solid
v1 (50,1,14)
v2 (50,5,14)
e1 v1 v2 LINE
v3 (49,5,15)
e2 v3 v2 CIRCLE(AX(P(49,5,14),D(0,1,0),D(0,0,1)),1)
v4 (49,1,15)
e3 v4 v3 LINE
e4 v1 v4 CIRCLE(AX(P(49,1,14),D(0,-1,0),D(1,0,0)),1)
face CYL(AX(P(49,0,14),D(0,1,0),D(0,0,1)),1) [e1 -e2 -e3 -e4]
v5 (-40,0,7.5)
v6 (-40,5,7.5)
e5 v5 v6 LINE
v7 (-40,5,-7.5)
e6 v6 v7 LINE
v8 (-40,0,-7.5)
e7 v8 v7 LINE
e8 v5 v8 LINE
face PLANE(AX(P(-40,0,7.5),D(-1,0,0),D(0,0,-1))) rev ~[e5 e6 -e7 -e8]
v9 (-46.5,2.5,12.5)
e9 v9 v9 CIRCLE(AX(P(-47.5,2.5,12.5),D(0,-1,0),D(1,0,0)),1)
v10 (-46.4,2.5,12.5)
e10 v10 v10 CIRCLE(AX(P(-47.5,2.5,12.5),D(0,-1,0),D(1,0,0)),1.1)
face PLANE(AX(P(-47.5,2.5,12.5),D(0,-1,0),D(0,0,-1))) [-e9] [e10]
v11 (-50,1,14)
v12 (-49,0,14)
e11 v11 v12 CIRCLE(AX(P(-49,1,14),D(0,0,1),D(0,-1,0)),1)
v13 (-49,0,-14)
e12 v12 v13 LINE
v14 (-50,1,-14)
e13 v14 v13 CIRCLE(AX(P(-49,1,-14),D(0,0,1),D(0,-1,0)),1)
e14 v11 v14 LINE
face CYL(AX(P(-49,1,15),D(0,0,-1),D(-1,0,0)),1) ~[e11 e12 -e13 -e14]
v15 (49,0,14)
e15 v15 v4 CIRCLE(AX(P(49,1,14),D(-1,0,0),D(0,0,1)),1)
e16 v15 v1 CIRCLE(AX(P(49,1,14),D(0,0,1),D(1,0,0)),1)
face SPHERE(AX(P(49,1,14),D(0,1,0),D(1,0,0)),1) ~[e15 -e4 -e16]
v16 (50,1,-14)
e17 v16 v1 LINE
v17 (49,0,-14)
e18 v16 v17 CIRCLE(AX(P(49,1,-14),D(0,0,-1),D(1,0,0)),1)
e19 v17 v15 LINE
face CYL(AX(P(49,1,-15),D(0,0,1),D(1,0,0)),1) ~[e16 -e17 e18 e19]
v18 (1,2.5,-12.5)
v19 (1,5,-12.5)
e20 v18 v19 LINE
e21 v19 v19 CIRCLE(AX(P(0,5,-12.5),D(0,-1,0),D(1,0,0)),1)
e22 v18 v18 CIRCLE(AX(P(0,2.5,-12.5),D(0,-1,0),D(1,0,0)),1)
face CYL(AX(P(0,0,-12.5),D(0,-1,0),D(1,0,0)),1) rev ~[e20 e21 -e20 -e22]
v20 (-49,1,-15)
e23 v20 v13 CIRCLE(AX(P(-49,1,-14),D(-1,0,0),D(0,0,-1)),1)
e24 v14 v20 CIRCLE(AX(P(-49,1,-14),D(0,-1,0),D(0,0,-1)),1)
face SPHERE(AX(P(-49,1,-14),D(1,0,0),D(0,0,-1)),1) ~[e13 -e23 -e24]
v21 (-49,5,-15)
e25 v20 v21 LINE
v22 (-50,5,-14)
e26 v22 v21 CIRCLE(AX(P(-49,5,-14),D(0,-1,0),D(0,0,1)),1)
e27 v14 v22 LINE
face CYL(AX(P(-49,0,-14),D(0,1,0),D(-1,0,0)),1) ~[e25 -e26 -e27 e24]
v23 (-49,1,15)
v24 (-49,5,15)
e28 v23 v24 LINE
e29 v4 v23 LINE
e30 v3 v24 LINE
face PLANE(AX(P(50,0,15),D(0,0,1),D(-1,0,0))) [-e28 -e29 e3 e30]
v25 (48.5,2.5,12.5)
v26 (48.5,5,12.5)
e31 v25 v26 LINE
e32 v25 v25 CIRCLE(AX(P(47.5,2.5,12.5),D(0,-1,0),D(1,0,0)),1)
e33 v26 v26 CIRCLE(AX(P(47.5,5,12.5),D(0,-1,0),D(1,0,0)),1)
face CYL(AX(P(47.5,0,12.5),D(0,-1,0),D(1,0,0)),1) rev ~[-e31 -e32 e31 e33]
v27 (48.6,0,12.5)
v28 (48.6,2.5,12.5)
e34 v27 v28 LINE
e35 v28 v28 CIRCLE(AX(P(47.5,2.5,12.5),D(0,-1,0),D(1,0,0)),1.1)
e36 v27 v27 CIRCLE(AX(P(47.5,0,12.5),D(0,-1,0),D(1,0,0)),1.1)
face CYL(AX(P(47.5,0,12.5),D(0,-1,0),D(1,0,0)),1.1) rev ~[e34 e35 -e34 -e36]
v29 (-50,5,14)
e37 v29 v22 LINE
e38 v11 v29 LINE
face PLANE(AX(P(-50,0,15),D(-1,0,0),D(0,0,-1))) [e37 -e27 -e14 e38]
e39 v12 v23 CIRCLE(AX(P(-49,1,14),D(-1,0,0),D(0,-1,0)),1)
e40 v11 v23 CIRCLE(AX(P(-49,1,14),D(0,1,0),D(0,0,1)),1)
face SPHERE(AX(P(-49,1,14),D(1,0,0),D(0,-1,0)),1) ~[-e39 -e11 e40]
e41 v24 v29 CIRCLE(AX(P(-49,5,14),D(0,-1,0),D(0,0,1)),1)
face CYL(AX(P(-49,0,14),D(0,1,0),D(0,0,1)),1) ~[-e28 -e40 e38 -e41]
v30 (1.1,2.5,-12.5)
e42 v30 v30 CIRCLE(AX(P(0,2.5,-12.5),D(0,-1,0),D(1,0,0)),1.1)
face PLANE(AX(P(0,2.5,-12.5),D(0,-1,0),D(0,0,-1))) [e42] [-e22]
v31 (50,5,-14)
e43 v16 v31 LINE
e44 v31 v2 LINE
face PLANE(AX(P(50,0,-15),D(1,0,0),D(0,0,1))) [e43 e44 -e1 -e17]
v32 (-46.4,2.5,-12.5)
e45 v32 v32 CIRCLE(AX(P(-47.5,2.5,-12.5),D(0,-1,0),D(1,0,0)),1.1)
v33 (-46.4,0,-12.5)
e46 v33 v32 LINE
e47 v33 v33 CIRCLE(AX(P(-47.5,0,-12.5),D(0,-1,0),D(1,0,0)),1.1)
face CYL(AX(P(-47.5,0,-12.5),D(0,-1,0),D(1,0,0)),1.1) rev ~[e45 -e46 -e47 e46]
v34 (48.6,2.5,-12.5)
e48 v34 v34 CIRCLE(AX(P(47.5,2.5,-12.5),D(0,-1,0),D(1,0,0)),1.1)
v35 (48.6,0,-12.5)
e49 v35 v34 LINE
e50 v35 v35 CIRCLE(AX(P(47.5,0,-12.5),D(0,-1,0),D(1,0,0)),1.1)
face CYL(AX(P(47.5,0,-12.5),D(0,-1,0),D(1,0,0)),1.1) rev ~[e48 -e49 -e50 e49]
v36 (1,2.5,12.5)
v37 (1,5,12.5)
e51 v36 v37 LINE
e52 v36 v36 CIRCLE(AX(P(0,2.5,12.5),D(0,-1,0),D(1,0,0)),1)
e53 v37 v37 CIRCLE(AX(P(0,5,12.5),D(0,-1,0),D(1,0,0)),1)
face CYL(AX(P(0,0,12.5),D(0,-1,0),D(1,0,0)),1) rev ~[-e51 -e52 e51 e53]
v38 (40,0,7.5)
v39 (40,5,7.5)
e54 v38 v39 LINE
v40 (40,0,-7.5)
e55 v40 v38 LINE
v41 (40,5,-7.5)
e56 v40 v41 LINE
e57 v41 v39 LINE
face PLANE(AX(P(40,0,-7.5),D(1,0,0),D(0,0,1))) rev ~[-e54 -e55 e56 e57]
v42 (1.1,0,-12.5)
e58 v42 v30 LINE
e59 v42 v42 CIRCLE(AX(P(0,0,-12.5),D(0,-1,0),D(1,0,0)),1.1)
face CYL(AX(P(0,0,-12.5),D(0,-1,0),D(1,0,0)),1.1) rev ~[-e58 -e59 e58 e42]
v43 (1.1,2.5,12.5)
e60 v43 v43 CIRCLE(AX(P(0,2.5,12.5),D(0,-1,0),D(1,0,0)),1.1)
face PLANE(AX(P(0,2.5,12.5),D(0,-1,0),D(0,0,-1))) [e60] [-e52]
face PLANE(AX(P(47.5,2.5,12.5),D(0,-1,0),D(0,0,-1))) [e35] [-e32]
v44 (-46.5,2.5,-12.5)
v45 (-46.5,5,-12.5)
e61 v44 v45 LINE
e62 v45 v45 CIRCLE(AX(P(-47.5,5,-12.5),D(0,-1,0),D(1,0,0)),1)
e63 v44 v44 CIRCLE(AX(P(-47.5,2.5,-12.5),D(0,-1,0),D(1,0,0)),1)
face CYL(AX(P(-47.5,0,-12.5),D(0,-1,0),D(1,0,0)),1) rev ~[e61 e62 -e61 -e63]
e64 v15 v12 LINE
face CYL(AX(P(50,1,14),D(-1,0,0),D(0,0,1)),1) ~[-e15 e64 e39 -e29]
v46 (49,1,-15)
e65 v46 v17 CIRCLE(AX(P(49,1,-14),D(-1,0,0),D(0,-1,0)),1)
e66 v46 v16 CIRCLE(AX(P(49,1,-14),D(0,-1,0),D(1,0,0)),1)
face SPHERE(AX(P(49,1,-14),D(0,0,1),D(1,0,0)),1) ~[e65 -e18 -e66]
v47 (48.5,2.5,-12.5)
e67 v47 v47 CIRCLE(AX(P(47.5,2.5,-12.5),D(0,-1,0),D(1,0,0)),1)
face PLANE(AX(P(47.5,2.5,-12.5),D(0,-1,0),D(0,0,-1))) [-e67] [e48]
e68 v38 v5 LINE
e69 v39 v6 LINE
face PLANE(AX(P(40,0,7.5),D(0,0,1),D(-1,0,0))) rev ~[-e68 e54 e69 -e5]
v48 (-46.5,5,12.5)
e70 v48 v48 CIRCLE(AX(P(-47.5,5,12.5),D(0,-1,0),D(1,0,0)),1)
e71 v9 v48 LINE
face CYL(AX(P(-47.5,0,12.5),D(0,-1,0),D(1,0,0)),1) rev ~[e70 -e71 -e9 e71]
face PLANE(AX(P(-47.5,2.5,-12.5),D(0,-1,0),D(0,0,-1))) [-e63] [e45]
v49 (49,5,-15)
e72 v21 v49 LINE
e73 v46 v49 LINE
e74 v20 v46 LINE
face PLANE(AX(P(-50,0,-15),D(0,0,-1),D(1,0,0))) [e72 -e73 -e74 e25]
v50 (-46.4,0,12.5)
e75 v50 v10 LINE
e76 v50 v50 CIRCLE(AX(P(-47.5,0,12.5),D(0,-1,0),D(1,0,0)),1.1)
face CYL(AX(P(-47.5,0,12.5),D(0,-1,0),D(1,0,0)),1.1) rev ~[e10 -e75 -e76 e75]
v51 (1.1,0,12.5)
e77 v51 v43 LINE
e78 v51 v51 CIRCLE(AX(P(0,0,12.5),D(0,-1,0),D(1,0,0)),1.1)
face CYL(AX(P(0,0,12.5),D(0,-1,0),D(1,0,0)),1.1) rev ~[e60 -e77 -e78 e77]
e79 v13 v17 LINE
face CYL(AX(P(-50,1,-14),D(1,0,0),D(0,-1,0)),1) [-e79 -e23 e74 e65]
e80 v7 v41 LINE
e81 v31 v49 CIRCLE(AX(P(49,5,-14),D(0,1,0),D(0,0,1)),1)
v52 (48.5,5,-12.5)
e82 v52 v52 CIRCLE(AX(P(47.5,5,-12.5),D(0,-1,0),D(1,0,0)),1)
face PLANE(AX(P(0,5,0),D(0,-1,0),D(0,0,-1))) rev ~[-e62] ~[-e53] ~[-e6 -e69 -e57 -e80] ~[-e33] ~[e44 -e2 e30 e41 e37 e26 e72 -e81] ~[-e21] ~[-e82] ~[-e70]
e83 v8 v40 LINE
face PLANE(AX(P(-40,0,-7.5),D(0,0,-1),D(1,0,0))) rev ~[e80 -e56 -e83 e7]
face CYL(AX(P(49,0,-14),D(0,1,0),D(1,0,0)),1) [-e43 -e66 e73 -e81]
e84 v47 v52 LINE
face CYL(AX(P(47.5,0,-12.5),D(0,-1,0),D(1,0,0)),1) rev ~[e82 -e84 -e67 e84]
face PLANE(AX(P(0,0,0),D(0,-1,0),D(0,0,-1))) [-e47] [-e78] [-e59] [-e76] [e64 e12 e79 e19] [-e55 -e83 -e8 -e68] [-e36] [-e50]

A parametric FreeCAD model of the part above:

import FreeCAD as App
import Part
import Sketcher

V = App.Vector
Q = App.Units.Quantity


def edges_at(feature, points):
    """Names of the edges that pass closest to the given points."""
    edges = feature.Shape.Edges
    near = lambda p: min(range(len(edges)), key=lambda i: edges[i].distToShape(Part.Vertex(*p))[0])
    return sorted({f"Edge{near(p) + 1}" for p in points})


def add_polygon(sketch, points):
    """Adds a closed chain of lines whose ends are joined by coincident constraints."""
    first, n = sketch.GeometryCount, len(points)
    for a, b in zip(points, points[1:] + points[:1]):
        sketch.addGeometry(Part.LineSegment(App.Vector(*a, 0), App.Vector(*b, 0)), False)
    for i in range(n):
        sketch.addConstraint(Sketcher.Constraint("Coincident", first + i, 2, first + (i + 1) % n, 1))

doc = App.newDocument("Part")
body = doc.addObject("PartDesign::Body", "Body")

# Sketch on XZ plane
sketch1 = doc.addObject("Sketcher::SketchObject", "Sketch")
body.addObject(sketch1)
sketch1.AttachmentSupport = (doc.XZ_Plane, [""])
sketch1.MapMode = "FlatFace"
add_polygon(sketch1, [(50, -15), (50, 15), (-50, 15), (-50, -15)])  # lines 0-3
sketch1.addConstraint([
    Sketcher.Constraint("Vertical", 0),
    Sketcher.Constraint("Horizontal", 1),
    Sketcher.Constraint("Vertical", 2),
    Sketcher.Constraint("Horizontal", 3),
    Sketcher.Constraint("Symmetric", 0, 2, 2, 2, -1, 1),
    Sketcher.Constraint("DistanceX", 1, 2, 1, 1, Q("100 mm")),
    Sketcher.Constraint("DistanceY", 0, 1, 0, 2, Q("30 mm")),
])
pad1 = doc.addObject("PartDesign::Pad", "Pad")
body.addObject(pad1)
pad1.Profile = sketch1
pad1.Length = 5
pad1.Reversed = True

# Sketch on XZ plane
sketch2 = doc.addObject("Sketcher::SketchObject", "Sketch001")
body.addObject(sketch2)
sketch2.AttachmentSupport = (doc.XZ_Plane, [""])
sketch2.MapMode = "FlatFace"
sketch2.addGeometry([
    Part.Circle(V(47.5, 12.5, 0), V(0, 0, 1), 1),  # 0
    Part.Circle(V(-47.5, 12.5, 0), V(0, 0, 1), 1),  # 1
    Part.Circle(V(-47.5, -12.5, 0), V(0, 0, 1), 1),  # 2
    Part.Circle(V(47.5, -12.5, 0), V(0, 0, 1), 1),  # 3
    Part.Circle(V(0, -12.5, 0), V(0, 0, 1), 1),  # 4
    Part.Circle(V(0, 12.5, 0), V(0, 0, 1), 1),  # 5
], False)
sketch2.addConstraint([
    Sketcher.Constraint("Equal", 0, 1),
    Sketcher.Constraint("Equal", 1, 2),
    Sketcher.Constraint("Equal", 2, 3),
    Sketcher.Constraint("Equal", 3, 4),
    Sketcher.Constraint("Equal", 4, 5),
    Sketcher.Constraint("Symmetric", 0, 3, 2, 3, -1, 1),
    Sketcher.Constraint("Symmetric", 1, 3, 3, 3, -1, 1),
    Sketcher.Constraint("Symmetric", 4, 3, 5, 3, -1, 1),
    Sketcher.Constraint("Symmetric", 0, 3, 1, 3, -2),
    Sketcher.Constraint("PointOnObject", 4, 3, -2),
    Sketcher.Constraint("Horizontal", 3, 3, 4, 3),
    Sketcher.Constraint("Diameter", 0, Q("2 mm")),
    Sketcher.Constraint("DistanceX", 1, 3, 0, 3, Q("95 mm")),
    Sketcher.Constraint("DistanceY", 2, 3, 1, 3, Q("25 mm")),
])
pocket1 = doc.addObject("PartDesign::Pocket", "Pocket")
body.addObject(pocket1)
pocket1.Profile = sketch2
pocket1.Length = 5

# Sketch on XZ plane
sketch3 = doc.addObject("Sketcher::SketchObject", "Sketch002")
body.addObject(sketch3)
sketch3.AttachmentSupport = (doc.XZ_Plane, [""])
sketch3.MapMode = "FlatFace"
sketch3.addGeometry([
    Part.Circle(V(47.5, 12.5, 0), V(0, 0, 1), 1.1),  # 0
    Part.Circle(V(-47.5, 12.5, 0), V(0, 0, 1), 1.1),  # 1
    Part.Circle(V(-47.5, -12.5, 0), V(0, 0, 1), 1.1),  # 2
    Part.Circle(V(47.5, -12.5, 0), V(0, 0, 1), 1.1),  # 3
    Part.Circle(V(0, 12.5, 0), V(0, 0, 1), 1.1),  # 4
    Part.Circle(V(0, -12.5, 0), V(0, 0, 1), 1.1),  # 5
], False)
sketch3.addConstraint([
    Sketcher.Constraint("Equal", 0, 1),
    Sketcher.Constraint("Equal", 1, 2),
    Sketcher.Constraint("Equal", 2, 3),
    Sketcher.Constraint("Equal", 3, 4),
    Sketcher.Constraint("Equal", 4, 5),
    Sketcher.Constraint("Symmetric", 0, 3, 2, 3, -1, 1),
    Sketcher.Constraint("Symmetric", 1, 3, 3, 3, -1, 1),
    Sketcher.Constraint("Symmetric", 4, 3, 5, 3, -1, 1),
    Sketcher.Constraint("Symmetric", 0, 3, 1, 3, -2),
    Sketcher.Constraint("PointOnObject", 4, 3, -2),
    Sketcher.Constraint("Horizontal", 1, 3, 4, 3),
    Sketcher.Constraint("Diameter", 0, Q("2.2 mm")),
    Sketcher.Constraint("DistanceX", 1, 3, 0, 3, Q("95 mm")),
    Sketcher.Constraint("DistanceY", 2, 3, 1, 3, Q("25 mm")),
])
pocket2 = doc.addObject("PartDesign::Pocket", "Pocket001")
body.addObject(pocket2)
pocket2.Profile = sketch3
pocket2.Length = 2.5
doc.recompute()

fillet = doc.addObject("PartDesign::Fillet", "Fillet")
body.addObject(fillet)
fillet.Base = (pocket2, edges_at(pocket2, [
    (50, 2.5, 15),
    (50, 0, 0),
    (0, 0, 15),
    (50, 2.5, -15),
    (0, 0, -15),
    (-50, 2.5, -15),
    (-50, 0, 0),
    (-50, 2.5, 15),
]))
fillet.Radius = 1

# Sketch on XZ plane
sketch4 = doc.addObject("Sketcher::SketchObject", "Sketch003")
body.addObject(sketch4)
sketch4.AttachmentSupport = (doc.XZ_Plane, [""])
sketch4.MapMode = "FlatFace"
add_polygon(sketch4, [(40, -8), (40, 8), (-40, 8), (-40, -8)])  # lines 0-3
sketch4.addConstraint([
    Sketcher.Constraint("Vertical", 0),
    Sketcher.Constraint("Horizontal", 1),
    Sketcher.Constraint("Vertical", 2),
    Sketcher.Constraint("Horizontal", 3),
    Sketcher.Constraint("Symmetric", 0, 2, 2, 2, -1, 1),
    Sketcher.Constraint("DistanceX", 1, 2, 1, 1, Q("80 mm")),
    Sketcher.Constraint("DistanceY", 0, 1, 0, 2, Q("15 mm")),
])
pocket3 = doc.addObject("PartDesign::Pocket", "Pocket002")
body.addObject(pocket3)
pocket3.Profile = sketch4
pocket3.Length = 5

doc.recompute()
